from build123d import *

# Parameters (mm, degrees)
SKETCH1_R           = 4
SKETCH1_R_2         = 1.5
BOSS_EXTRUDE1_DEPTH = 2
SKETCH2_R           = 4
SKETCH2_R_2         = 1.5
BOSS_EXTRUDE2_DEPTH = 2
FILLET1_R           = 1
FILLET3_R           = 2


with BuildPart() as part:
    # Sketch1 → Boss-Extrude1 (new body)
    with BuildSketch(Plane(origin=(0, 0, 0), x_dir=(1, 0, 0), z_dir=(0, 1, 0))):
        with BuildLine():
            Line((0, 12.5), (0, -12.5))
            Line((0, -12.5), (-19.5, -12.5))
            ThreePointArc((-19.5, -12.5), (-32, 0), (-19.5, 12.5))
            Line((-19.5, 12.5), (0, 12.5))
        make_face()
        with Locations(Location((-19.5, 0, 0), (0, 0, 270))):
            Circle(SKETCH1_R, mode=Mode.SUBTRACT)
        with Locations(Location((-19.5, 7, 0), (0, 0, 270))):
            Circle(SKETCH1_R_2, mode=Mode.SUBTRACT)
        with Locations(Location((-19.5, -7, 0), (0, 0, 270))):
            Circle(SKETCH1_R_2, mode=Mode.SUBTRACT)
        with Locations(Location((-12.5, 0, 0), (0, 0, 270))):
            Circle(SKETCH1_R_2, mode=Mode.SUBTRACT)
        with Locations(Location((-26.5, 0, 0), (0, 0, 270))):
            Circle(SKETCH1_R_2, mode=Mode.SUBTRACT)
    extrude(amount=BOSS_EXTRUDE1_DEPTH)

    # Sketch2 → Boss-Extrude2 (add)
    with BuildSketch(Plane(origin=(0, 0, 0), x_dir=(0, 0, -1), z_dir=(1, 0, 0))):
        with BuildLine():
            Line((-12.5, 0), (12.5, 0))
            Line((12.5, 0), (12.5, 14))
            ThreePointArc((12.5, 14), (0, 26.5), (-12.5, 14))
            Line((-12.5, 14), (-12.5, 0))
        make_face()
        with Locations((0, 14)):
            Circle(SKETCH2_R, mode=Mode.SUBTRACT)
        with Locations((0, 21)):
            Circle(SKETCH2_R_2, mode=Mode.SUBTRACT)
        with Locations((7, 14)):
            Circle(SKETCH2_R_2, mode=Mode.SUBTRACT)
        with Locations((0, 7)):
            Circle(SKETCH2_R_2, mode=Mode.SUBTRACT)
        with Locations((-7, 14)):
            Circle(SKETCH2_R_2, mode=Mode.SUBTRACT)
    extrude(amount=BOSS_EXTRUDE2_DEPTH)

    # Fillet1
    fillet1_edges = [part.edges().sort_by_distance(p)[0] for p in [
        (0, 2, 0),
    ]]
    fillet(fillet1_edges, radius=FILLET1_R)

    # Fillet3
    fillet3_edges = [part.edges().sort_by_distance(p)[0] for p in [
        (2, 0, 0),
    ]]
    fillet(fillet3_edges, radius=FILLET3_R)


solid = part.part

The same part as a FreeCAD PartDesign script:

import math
import FreeCAD as App
import Part
import Sketcher

V = App.Vector


def edges_at(feature, points):
    """Names of the edges that pass closest to the given points."""
    edges = feature.Shape.Edges
    near = lambda p: min(range(len(edges)), key=lambda i: edges[i].distToShape(Part.Vertex(*p))[0])
    return sorted({f"Edge{near(p) + 1}" for p in points})

doc = App.newDocument("Part")
body = doc.addObject("PartDesign::Body", "Body")

# Sketch on XZ plane
sketch1 = body.newObject("Sketcher::SketchObject", "Sketch")
sketch1.AttachmentSupport = (doc.getObject("XZ_Plane"), [""])
sketch1.MapMode = "FlatFace"
sketch1.addGeometry(Part.LineSegment(V(0, 12.5, 0), V(0, -12.5, 0)), False)
sketch1.addGeometry(Part.LineSegment(V(0, -12.5, 0), V(-19.5, -12.5, 0)), False)
sketch1.addGeometry(Part.ArcOfCircle(Part.Circle(V(-19.5, 0, 0), V(0, 0, 1), 12.5), math.radians(90), math.radians(270)), False)
sketch1.addGeometry(Part.LineSegment(V(-19.5, 12.5, 0), V(0, 12.5, 0)), False)
sketch1.addGeometry(Part.Circle(V(-19.5, 7, 0), V(0, 0, 1), 1.5), False)
sketch1.addGeometry(Part.Circle(V(-12.5, 0, 0), V(0, 0, 1), 1.5), False)
sketch1.addGeometry(Part.Circle(V(-19.5, 0, 0), V(0, 0, 1), 4), False)
sketch1.addGeometry(Part.Circle(V(-26.5, 0, 0), V(0, 0, 1), 1.5), False)
sketch1.addGeometry(Part.Circle(V(-19.5, -7, 0), V(0, 0, 1), 1.5), False)
sketch1.addConstraint(Sketcher.Constraint("Coincident", 0, 2, 1, 1))
sketch1.addConstraint(Sketcher.Constraint("Tangent", 1, 2, 2, 2))
sketch1.addConstraint(Sketcher.Constraint("Tangent", 2, 1, 3, 1))
sketch1.addConstraint(Sketcher.Constraint("Coincident", 3, 2, 0, 1))
sketch1.addConstraint(Sketcher.Constraint("Vertical", 0))
sketch1.addConstraint(Sketcher.Constraint("Horizontal", 1))
sketch1.addConstraint(Sketcher.Constraint("Horizontal", 3))
sketch1.addConstraint(Sketcher.Constraint("Coincident", 6, 3, 2, 3))
sketch1.addConstraint(Sketcher.Constraint("Equal", 4, 5))
sketch1.addConstraint(Sketcher.Constraint("Equal", 5, 7))
sketch1.addConstraint(Sketcher.Constraint("Equal", 7, 8))
sketch1.addConstraint(Sketcher.Constraint("Symmetric", 0, 2, 3, 2, -1, 1))
sketch1.addConstraint(Sketcher.Constraint("Symmetric", 4, 3, 8, 3, -1))
sketch1.addConstraint(Sketcher.Constraint("PointOnObject", 5, 3, -1))
sketch1.addConstraint(Sketcher.Constraint("PointOnObject", 7, 3, -1))
sketch1.addConstraint(Sketcher.Constraint("Vertical", 2, 3, 4, 3))
sketch1.addConstraint(Sketcher.Constraint("Diameter", 4, 3.0))
sketch1.addConstraint(Sketcher.Constraint("Diameter", 6, 8.0))
sketch1.addConstraint(Sketcher.Constraint("Radius", 2, 12.5))
sketch1.addConstraint(Sketcher.Constraint("DistanceX", 1, 2, 1, 1, 19.5))
sketch1.addConstraint(Sketcher.Constraint("DistanceY", -1, 1, 4, 3, 7.0))
sketch1.addConstraint(Sketcher.Constraint("DistanceX", 2, 3, 5, 3, 7.0))
sketch1.addConstraint(Sketcher.Constraint("DistanceX", 7, 3, 2, 3, 7.0))
pad1 = body.newObject("PartDesign::Pad", "Pad")
pad1.Profile = sketch1
pad1.Length = 2
pad1.Reversed = True

# Sketch on YZ plane
sketch2 = body.newObject("Sketcher::SketchObject", "Sketch001")
sketch2.AttachmentSupport = (doc.getObject("YZ_Plane"), [""])
sketch2.MapMode = "FlatFace"
sketch2.addGeometry(Part.LineSegment(V(0, 12.5, 0), V(0, -12.5, 0)), False)
sketch2.addGeometry(Part.LineSegment(V(0, -12.5, 0), V(14, -12.5, 0)), False)
sketch2.addGeometry(Part.ArcOfCircle(Part.Circle(V(14, 0, 0), V(0, 0, 1), 12.5), math.radians(-90), math.radians(90)), False)
sketch2.addGeometry(Part.LineSegment(V(14, 12.5, 0), V(0, 12.5, 0)), False)
sketch2.addGeometry(Part.Circle(V(7, 0, 0), V(0, 0, 1), 1.5), False)
sketch2.addGeometry(Part.Circle(V(14, 7, 0), V(0, 0, 1), 1.5), False)
sketch2.addGeometry(Part.Circle(V(14, 0, 0), V(0, 0, 1), 4), False)
sketch2.addGeometry(Part.Circle(V(14, -7, 0), V(0, 0, 1), 1.5), False)
sketch2.addGeometry(Part.Circle(V(21, 0, 0), V(0, 0, 1), 1.5), False)
sketch2.addConstraint(Sketcher.Constraint("Coincident", 0, 2, 1, 1))
sketch2.addConstraint(Sketcher.Constraint("Tangent", 1, 2, 2, 1))
sketch2.addConstraint(Sketcher.Constraint("Tangent", 2, 2, 3, 1))
sketch2.addConstraint(Sketcher.Constraint("Coincident", 3, 2, 0, 1))
sketch2.addConstraint(Sketcher.Constraint("Vertical", 0))
sketch2.addConstraint(Sketcher.Constraint("Horizontal", 1))
sketch2.addConstraint(Sketcher.Constraint("Horizontal", 3))
sketch2.addConstraint(Sketcher.Constraint("Coincident", 6, 3, 2, 3))
sketch2.addConstraint(Sketcher.Constraint("Equal", 4, 5))
sketch2.addConstraint(Sketcher.Constraint("Equal", 5, 7))
sketch2.addConstraint(Sketcher.Constraint("Equal", 7, 8))
sketch2.addConstraint(Sketcher.Constraint("Symmetric", 0, 2, 3, 2, -1, 1))
sketch2.addConstraint(Sketcher.Constraint("Symmetric", 5, 3, 7, 3, -1))
sketch2.addConstraint(Sketcher.Constraint("PointOnObject", 4, 3, -1))
sketch2.addConstraint(Sketcher.Constraint("PointOnObject", 8, 3, -1))
sketch2.addConstraint(Sketcher.Constraint("Vertical", 2, 3, 5, 3))
sketch2.addConstraint(Sketcher.Constraint("Diameter", 4, 3.0))
sketch2.addConstraint(Sketcher.Constraint("Diameter", 6, 8.0))
sketch2.addConstraint(Sketcher.Constraint("Radius", 2, 12.5))
sketch2.addConstraint(Sketcher.Constraint("DistanceX", 1, 1, 1, 2, 14.0))
sketch2.addConstraint(Sketcher.Constraint("DistanceX", -1, 1, 4, 3, 7.0))
sketch2.addConstraint(Sketcher.Constraint("DistanceY", -1, 1, 5, 3, 7.0))
sketch2.addConstraint(Sketcher.Constraint("DistanceX", -1, 1, 8, 3, 21.0))
pad2 = body.newObject("PartDesign::Pad", "Pad001")
pad2.Profile = sketch2
pad2.Length = 2
doc.recompute()

fillet = body.newObject("PartDesign::Fillet", "Fillet")
fillet.Base = (pad2, edges_at(pad2, [(0, 2, 0)]))
fillet.Radius = 1
doc.recompute()

fillet2 = body.newObject("PartDesign::Fillet", "Fillet001")
fillet2.Base = (fillet, edges_at(fillet, [(2, 0, 0)]))
fillet2.Radius = 2

doc.recompute()
